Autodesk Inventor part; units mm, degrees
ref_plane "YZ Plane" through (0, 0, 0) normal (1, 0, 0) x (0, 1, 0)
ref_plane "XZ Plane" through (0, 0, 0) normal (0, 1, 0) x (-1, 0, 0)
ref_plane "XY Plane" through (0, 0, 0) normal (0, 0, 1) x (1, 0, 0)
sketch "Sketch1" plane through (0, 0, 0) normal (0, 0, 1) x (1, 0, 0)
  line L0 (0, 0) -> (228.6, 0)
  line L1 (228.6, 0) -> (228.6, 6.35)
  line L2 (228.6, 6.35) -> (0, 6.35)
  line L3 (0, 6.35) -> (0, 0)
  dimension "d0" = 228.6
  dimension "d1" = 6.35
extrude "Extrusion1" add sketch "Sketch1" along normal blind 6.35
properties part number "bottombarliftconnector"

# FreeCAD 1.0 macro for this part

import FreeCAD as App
import Part
import Sketcher
Q = App.Units.Quantity


def add_polygon(sketch, points):
    """Adds a closed chain of lines whose ends are joined by coincident constraints."""
    first, n = sketch.GeometryCount, len(points)
    for a, b in zip(points, points[1:] + points[:1]):
        sketch.addGeometry(Part.LineSegment(App.Vector(*a, 0), App.Vector(*b, 0)), False)
    for i in range(n):
        sketch.addConstraint(Sketcher.Constraint("Coincident", first + i, 2, first + (i + 1) % n, 1))

doc = App.newDocument("Part")
params = doc.addObject("Spreadsheet::Sheet", "Params")
for row, (alias, value) in enumerate([
    ("sketch1_width", "9 in"),
    ("sketch1_height", "0.25 in"),
    ("pad1_length", "0.25 in"),
], start=1):
    params.set(f"A{row}", alias)
    params.set(f"B{row}", "=" + value)
    params.setAlias(f"B{row}", alias)

body = doc.addObject("PartDesign::Body", "Body")

# Sketch on XY plane
sketch1 = body.newObject("Sketcher::SketchObject", "Sketch")
sketch1.AttachmentSupport = (doc.getObject("XY_Plane"), [""])
sketch1.MapMode = "FlatFace"
add_polygon(sketch1, [(0, 6), (0, 0), (229, 0), (229, 6)])  # lines 0-3
sketch1.addConstraint([
    Sketcher.Constraint("Vertical", 0),
    Sketcher.Constraint("Horizontal", 1),
    Sketcher.Constraint("Vertical", 2),
    Sketcher.Constraint("Horizontal", 3),
    Sketcher.Constraint("Coincident", 0, 2, -1, 1),
    Sketcher.Constraint("DistanceX", 1, 1, 1, 2, Q("9 in")),
    Sketcher.Constraint("DistanceY", 0, 2, 0, 1, Q("0.25 in")),
])
sketch1.setExpression("Constraints[9]", "Params.sketch1_width")
sketch1.setExpression("Constraints[10]", "Params.sketch1_height")
pad1 = body.newObject("PartDesign::Pad", "Pad")
pad1.Profile = sketch1
pad1.setExpression("Length", "Params.pad1_length")

doc.recompute()
